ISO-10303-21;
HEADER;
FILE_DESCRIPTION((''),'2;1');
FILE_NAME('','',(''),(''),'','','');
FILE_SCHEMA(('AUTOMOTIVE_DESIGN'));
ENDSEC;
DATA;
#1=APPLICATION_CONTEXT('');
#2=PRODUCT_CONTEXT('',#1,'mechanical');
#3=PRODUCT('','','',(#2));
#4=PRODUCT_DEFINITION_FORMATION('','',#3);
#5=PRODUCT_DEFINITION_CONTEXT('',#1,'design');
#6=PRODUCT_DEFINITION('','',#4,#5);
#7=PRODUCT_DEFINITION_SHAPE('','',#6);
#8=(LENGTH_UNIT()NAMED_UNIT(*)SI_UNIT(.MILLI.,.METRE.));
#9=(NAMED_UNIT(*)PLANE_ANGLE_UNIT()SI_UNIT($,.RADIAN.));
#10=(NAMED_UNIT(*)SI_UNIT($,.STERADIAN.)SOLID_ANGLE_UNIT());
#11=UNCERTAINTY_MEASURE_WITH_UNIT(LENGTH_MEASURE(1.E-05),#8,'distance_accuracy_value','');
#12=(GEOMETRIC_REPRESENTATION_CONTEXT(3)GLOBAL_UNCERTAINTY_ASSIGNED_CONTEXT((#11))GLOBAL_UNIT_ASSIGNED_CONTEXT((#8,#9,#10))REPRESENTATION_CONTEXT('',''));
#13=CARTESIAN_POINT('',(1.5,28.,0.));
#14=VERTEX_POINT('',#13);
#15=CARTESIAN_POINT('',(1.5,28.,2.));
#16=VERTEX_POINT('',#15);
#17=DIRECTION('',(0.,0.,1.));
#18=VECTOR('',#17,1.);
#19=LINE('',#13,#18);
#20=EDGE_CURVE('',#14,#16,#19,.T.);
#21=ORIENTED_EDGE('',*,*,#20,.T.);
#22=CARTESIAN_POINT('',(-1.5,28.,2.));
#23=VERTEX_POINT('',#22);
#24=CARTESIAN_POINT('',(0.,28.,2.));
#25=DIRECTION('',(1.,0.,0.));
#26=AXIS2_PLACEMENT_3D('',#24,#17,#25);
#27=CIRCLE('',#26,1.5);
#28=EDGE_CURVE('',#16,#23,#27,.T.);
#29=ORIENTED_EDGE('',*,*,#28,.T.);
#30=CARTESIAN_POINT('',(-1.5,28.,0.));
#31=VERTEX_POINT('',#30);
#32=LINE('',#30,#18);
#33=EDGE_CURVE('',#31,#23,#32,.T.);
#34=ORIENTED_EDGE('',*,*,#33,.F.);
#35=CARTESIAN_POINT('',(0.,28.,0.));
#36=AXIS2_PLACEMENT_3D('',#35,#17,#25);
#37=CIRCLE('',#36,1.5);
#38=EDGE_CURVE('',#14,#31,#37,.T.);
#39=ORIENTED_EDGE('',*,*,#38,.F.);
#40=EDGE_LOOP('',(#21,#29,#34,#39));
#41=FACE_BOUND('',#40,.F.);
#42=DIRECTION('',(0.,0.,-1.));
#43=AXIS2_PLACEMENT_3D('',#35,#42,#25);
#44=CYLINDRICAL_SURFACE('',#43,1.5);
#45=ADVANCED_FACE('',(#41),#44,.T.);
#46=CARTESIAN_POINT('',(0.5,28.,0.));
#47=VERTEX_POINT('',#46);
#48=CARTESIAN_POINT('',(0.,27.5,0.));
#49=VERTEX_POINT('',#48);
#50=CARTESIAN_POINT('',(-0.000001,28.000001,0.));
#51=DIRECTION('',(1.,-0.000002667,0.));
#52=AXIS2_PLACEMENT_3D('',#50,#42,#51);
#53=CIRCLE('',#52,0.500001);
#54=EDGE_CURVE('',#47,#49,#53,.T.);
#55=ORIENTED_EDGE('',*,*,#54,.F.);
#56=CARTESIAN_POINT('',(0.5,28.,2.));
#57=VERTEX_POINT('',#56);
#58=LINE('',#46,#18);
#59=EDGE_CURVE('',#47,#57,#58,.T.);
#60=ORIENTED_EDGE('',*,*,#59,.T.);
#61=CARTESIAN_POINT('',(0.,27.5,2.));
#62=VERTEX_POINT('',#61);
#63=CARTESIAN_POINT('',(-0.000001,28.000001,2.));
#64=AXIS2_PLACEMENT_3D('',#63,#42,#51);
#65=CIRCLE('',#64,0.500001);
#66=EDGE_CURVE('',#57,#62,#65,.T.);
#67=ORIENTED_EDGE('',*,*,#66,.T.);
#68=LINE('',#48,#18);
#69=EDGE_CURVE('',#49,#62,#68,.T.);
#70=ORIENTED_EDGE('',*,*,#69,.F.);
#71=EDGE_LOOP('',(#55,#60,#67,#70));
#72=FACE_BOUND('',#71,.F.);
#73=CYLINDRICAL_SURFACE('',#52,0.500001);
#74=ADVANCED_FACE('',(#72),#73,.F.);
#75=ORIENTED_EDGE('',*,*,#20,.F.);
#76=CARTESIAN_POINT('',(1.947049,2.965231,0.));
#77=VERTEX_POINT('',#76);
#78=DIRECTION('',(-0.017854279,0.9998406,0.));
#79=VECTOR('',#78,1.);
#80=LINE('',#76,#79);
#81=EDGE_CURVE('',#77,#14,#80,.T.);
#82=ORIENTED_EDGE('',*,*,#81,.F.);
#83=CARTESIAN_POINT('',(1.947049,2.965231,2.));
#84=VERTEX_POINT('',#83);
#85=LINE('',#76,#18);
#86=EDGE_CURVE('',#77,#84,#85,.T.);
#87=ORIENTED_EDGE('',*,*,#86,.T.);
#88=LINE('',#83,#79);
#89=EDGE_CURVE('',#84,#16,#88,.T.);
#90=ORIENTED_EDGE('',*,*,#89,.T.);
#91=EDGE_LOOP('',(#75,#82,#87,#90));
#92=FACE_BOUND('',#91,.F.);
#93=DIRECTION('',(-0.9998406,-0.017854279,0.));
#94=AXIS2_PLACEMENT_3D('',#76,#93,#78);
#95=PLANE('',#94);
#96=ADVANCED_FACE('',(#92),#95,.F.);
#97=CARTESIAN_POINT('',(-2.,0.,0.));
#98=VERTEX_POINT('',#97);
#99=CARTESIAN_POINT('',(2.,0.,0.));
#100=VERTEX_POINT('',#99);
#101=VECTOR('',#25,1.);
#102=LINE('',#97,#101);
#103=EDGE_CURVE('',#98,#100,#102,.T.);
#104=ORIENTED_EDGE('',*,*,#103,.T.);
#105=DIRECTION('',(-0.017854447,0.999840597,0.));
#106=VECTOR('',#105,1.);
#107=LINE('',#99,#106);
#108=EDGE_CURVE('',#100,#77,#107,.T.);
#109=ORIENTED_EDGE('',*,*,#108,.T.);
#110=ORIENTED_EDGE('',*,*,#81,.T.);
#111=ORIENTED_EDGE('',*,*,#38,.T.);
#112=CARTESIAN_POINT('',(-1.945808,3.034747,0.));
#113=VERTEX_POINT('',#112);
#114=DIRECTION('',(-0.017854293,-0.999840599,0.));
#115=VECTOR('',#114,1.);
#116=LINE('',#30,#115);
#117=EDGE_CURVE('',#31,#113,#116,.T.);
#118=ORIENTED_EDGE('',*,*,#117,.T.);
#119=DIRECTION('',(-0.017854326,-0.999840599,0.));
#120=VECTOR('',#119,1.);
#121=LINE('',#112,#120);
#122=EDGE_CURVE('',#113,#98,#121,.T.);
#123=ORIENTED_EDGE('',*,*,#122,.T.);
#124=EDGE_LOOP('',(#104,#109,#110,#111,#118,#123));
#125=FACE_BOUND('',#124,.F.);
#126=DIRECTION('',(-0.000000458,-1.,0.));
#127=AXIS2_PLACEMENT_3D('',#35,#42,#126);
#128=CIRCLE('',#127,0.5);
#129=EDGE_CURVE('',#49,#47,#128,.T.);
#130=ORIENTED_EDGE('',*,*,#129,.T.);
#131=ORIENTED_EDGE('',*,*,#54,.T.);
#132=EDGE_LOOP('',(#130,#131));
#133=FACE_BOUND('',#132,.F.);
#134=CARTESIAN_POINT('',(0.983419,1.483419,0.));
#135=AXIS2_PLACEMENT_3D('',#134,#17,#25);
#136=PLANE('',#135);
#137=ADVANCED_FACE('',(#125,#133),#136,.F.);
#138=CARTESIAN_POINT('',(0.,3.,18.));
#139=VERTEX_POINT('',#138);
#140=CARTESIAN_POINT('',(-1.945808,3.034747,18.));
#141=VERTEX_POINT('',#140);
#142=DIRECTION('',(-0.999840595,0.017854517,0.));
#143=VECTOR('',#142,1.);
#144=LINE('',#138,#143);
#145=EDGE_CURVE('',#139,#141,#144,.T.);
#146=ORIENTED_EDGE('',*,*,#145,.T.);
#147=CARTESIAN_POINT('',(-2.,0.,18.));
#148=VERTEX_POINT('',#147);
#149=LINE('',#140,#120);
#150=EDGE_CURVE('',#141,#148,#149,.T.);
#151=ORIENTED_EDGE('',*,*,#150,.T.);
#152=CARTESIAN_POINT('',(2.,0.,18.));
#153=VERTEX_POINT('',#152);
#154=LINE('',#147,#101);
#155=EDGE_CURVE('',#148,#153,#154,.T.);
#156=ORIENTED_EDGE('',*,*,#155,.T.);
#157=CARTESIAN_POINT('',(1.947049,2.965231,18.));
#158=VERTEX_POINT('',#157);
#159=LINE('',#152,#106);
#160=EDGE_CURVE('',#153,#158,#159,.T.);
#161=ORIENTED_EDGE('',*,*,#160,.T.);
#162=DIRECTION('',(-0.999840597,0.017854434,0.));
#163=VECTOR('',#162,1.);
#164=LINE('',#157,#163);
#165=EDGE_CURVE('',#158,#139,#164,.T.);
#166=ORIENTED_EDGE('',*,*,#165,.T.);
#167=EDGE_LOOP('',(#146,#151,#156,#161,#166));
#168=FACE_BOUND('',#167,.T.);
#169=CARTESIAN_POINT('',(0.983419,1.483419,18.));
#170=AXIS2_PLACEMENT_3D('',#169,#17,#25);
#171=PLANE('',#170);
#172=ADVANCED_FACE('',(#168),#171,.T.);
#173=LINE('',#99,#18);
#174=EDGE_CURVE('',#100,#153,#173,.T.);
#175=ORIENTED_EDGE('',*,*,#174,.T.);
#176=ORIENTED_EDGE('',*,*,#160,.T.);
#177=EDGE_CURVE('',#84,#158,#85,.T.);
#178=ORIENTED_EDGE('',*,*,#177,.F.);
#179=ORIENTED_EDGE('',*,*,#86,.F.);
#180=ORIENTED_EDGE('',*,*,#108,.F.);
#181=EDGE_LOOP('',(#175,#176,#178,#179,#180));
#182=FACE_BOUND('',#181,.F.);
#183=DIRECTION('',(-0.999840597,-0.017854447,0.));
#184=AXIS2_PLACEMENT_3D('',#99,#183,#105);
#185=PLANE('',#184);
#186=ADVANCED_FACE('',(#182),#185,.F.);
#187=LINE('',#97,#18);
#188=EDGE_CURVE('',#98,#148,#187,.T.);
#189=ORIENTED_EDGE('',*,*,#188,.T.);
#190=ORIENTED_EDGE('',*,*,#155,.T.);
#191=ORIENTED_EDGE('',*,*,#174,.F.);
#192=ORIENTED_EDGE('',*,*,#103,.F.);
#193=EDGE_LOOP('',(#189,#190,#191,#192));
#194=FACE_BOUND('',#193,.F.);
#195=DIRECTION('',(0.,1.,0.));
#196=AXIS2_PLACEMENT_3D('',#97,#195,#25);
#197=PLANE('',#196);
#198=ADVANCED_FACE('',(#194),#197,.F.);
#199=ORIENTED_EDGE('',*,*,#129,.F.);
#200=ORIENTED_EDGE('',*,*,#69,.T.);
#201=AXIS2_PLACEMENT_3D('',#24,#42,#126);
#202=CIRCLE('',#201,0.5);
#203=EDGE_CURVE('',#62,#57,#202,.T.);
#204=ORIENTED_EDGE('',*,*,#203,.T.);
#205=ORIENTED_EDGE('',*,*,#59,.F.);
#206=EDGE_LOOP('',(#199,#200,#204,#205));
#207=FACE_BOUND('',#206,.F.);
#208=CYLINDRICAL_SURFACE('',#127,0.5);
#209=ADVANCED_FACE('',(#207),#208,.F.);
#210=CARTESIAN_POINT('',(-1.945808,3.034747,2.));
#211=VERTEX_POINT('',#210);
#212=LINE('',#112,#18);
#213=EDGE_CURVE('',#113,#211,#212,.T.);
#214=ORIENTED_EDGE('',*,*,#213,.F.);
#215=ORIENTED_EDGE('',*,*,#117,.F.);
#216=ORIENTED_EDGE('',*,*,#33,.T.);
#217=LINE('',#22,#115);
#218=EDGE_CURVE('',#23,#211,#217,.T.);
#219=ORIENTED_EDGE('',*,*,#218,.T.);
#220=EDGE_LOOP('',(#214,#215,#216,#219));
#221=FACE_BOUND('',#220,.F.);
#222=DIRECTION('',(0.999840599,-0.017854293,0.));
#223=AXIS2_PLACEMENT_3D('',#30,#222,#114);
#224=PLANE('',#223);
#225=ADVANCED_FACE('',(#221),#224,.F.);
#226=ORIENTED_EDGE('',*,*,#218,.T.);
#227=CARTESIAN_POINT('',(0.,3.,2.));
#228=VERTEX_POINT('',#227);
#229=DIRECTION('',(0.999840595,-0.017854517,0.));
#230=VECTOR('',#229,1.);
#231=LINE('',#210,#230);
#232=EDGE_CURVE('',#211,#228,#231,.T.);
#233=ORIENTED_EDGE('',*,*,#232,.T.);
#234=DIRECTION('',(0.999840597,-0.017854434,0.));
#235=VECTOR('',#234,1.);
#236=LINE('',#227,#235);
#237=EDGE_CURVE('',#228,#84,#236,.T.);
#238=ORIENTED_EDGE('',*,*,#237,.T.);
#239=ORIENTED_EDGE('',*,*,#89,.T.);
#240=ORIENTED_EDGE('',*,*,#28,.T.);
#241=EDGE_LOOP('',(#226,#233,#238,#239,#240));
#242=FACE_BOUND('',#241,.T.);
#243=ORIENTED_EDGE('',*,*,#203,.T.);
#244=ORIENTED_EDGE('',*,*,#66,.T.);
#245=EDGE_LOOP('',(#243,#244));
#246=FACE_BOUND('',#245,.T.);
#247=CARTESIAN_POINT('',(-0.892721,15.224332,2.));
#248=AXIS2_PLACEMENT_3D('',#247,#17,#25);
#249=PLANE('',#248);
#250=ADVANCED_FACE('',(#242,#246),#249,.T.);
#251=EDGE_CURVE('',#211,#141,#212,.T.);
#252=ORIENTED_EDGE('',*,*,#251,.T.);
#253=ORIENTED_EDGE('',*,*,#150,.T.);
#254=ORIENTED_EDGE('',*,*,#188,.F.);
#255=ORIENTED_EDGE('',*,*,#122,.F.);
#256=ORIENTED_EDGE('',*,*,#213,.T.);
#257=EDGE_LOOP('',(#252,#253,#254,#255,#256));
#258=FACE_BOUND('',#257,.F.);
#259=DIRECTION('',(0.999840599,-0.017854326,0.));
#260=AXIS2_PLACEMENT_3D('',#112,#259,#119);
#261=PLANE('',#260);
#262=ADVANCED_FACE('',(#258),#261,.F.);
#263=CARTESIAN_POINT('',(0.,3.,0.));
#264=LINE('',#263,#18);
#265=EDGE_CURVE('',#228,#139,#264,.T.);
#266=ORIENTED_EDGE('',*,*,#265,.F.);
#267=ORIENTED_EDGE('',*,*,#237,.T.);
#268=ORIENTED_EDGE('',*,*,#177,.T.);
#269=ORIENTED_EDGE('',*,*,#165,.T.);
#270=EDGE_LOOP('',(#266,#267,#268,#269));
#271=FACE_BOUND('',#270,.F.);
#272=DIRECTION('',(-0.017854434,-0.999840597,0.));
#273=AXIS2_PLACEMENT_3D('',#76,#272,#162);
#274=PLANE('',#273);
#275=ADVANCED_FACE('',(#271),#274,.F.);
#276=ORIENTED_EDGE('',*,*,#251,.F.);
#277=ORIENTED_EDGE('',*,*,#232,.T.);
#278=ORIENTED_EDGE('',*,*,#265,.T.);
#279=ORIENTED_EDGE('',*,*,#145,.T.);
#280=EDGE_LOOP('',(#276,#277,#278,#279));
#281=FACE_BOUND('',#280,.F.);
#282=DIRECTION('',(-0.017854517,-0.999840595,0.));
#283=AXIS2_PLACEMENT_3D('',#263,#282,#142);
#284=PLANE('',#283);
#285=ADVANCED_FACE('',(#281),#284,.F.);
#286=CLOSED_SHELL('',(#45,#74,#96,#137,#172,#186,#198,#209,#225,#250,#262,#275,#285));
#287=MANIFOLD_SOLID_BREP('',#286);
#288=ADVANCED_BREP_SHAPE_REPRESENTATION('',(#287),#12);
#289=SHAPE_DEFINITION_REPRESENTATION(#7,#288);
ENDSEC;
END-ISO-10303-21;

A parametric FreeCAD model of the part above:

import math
import FreeCAD as App
import Part
import Sketcher
Q = App.Units.Quantity

doc = App.newDocument("Part")
body = doc.addObject("PartDesign::Body", "Body")

# Sketch on XY plane
sketch1 = body.newObject("Sketcher::SketchObject", "Sketch")
sketch1.AttachmentSupport = (doc.getObject("XY_Plane"), [""])
sketch1.MapMode = "FlatFace"
sketch1.addGeometry([
    Part.LineSegment(App.Vector(-1.945808, 3.034747, 0), App.Vector(0, 3, 0)),  # 0
    Part.LineSegment(App.Vector(0, 3, 0), App.Vector(1.947049, 2.965231, 0)),  # 1
    Part.LineSegment(App.Vector(1.947049, 2.965231, 0), App.Vector(1.5, 28, 0)),  # 2
    Part.ArcOfCircle(Part.Circle(App.Vector(0, 28, 0), App.Vector(0, 0, 1), 1.5), math.radians(0), math.radians(180)),  # 3
    Part.LineSegment(App.Vector(-1.5, 28, 0), App.Vector(-1.945808, 3.034747, 0)),  # 4
    Part.ArcOfCircle(Part.Circle(App.Vector(0, 28, 0), App.Vector(0, 0, 1), 0.5), math.radians(0.000026), math.radians(269.999974)),  # 5
    Part.ArcOfCircle(Part.Circle(App.Vector(-0.000001, 28.000001, 0), App.Vector(0, 0, 1), 0.500001), math.radians(-89.999847), math.radians(-0.000153)),  # 6
], False)
sketch1.addConstraint([
    Sketcher.Constraint("Coincident", 0, 2, 1, 1),
    Sketcher.Constraint("Coincident", 1, 2, 2, 1),
    Sketcher.Constraint("Coincident", 2, 2, 3, 1),
    Sketcher.Constraint("Coincident", 3, 2, 4, 1),
    Sketcher.Constraint("Coincident", 4, 2, 0, 1),
    Sketcher.Constraint("Coincident", 5, 1, 6, 2),
    Sketcher.Constraint("Coincident", 6, 1, 5, 2),
    Sketcher.Constraint("Coincident", 5, 3, 3, 3),
    Sketcher.Constraint("Equal", 5, 6),
    Sketcher.Constraint("Symmetric", 2, 2, 3, 2, -2),
    Sketcher.Constraint("PointOnObject", 0, 2, -2),
    Sketcher.Constraint("PointOnObject", 6, 1, -2),
    Sketcher.Constraint("Parallel", 0, 1),
    Sketcher.Constraint("Perpendicular", 1, 4),
    Sketcher.Constraint("Horizontal", 6, 3, 2, 2),
    Sketcher.Constraint("Horizontal", 3, 2, 5, 1),
    Sketcher.Constraint("Radius", 3, Q("1.5 mm")),
    Sketcher.Constraint("Radius", 5, Q("0.5 mm")),
    Sketcher.Constraint("DistanceY", -1, 1, 3, 3, Q("28 mm")),
    Sketcher.Constraint("DistanceY", -1, 1, 0, 2, Q("3 mm")),
    Sketcher.Constraint("Distance", 0, Q("1.946118 mm")),
    Sketcher.Constraint("Distance", 1, Q("1.947359 mm")),
])
pad1 = body.newObject("PartDesign::Pad", "Pad")
pad1.Profile = sketch1
pad1.Length = 2

# Sketch on XY plane
sketch2 = body.newObject("Sketcher::SketchObject", "Sketch001")
sketch2.AttachmentSupport = (doc.getObject("XY_Plane"), [""])
sketch2.MapMode = "FlatFace"
sketch2.addGeometry([
    Part.LineSegment(App.Vector(2, 0, 0), App.Vector(1.947049, 2.965231, 0)),  # 0
    Part.LineSegment(App.Vector(1.947049, 2.965231, 0), App.Vector(0, 3, 0)),  # 1
    Part.LineSegment(App.Vector(0, 3, 0), App.Vector(-1.945808, 3.034747, 0)),  # 2
    Part.LineSegment(App.Vector(-1.945808, 3.034747, 0), App.Vector(-2, 0, 0)),  # 3
    Part.LineSegment(App.Vector(-2, 0, 0), App.Vector(2, 0, 0)),  # 4
], False)
sketch2.addConstraint([
    Sketcher.Constraint("Coincident", 0, 2, 1, 1),
    Sketcher.Constraint("Coincident", 1, 2, 2, 1),
    Sketcher.Constraint("Coincident", 2, 2, 3, 1),
    Sketcher.Constraint("Coincident", 3, 2, 4, 1),
    Sketcher.Constraint("Coincident", 4, 2, 0, 1),
    Sketcher.Constraint("Horizontal", 4),
    Sketcher.Constraint("Symmetric", 3, 2, 4, 2, -1, 1),
    Sketcher.Constraint("PointOnObject", 1, 2, -2),
    Sketcher.Constraint("Parallel", 1, 2),
    Sketcher.Constraint("Perpendicular", 2, 3),
    Sketcher.Constraint("DistanceX", 4, 1, 4, 2, Q("4 mm")),
    Sketcher.Constraint("DistanceY", -1, 1, 1, 2, Q("3 mm")),
    Sketcher.Constraint("Distance", 1, Q("1.947359 mm")),
    Sketcher.Constraint("Distance", 2, Q("1.946118 mm")),
])
pad2 = body.newObject("PartDesign::Pad", "Pad001")
pad2.Profile = sketch2
pad2.Length = 18

doc.recompute()
